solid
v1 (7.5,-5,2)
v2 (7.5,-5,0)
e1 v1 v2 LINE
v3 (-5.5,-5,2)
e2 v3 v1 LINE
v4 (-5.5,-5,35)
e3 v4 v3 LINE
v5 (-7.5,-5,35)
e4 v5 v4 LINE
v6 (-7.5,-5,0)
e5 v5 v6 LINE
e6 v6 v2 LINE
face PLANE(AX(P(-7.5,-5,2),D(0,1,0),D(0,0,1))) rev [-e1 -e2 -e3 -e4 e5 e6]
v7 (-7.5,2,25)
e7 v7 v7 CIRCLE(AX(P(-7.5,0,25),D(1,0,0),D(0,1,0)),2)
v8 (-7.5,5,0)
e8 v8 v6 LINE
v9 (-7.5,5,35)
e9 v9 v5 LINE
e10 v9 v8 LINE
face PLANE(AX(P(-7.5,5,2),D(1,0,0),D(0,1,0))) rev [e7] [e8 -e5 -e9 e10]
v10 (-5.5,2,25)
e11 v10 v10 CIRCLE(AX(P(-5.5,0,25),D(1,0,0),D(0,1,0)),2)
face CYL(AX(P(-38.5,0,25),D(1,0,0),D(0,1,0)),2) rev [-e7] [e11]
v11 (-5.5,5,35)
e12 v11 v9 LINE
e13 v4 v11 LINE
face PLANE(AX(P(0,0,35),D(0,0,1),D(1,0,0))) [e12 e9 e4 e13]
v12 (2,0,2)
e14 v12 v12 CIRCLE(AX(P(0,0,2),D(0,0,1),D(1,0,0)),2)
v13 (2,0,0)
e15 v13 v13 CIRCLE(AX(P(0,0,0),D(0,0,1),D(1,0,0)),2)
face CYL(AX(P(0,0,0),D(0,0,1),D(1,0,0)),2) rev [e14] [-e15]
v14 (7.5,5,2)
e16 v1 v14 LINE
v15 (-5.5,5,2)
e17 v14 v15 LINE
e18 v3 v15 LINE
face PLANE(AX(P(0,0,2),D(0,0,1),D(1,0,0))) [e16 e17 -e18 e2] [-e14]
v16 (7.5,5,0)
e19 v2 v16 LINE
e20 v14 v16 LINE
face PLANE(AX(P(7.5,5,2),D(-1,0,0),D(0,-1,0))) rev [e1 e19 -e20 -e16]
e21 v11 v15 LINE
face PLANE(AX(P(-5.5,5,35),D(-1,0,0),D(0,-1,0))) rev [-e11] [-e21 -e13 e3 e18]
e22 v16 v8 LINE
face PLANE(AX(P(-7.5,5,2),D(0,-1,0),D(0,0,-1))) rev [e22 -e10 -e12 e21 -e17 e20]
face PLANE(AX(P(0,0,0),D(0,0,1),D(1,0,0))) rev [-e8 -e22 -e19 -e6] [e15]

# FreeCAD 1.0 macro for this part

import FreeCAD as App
import Part
import Sketcher

V = App.Vector
Q = App.Units.Quantity


def add_polygon(sketch, points):
    """Adds a closed chain of lines whose ends are joined by coincident constraints."""
    first, n = sketch.GeometryCount, len(points)
    for a, b in zip(points, points[1:] + points[:1]):
        sketch.addGeometry(Part.LineSegment(App.Vector(*a, 0), App.Vector(*b, 0)), False)
    for i in range(n):
        sketch.addConstraint(Sketcher.Constraint("Coincident", first + i, 2, first + (i + 1) % n, 1))

doc = App.newDocument("Part")
params = doc.addObject("Spreadsheet::Sheet", "Params")
for row, (alias, value) in enumerate([
    ("sketch1_width", "15 mm"),
    ("sketch1_height", "10 mm"),
    ("pad1_length", "2 mm"),
    ("sketch2_diameter", "4 mm"),
    ("pocket1_length", "2 mm"),
    ("sketch3_width", "2 mm"),
    ("sketch3_height", "10 mm"),
    ("pad2_length", "33 mm"),
    ("sketch4_diameter", "4 mm"),
    ("pocket2_length", "33 mm"),
], start=1):
    params.set(f"A{row}", alias)
    params.set(f"B{row}", "=" + value)
    params.setAlias(f"B{row}", alias)

body = doc.addObject("PartDesign::Body", "Body")

sketch1 = doc.addObject("Sketcher::SketchObject", "Sketch")
body.addObject(sketch1)
sketch1.AttachmentSupport = (doc.XY_Plane, [""])
sketch1.MapMode = "FlatFace"
add_polygon(sketch1, [(-8, 5), (-8, -5), (8, -5), (8, 5)])
sketch1.addConstraint([
    Sketcher.Constraint("Vertical", 0),
    Sketcher.Constraint("Horizontal", 1),
    Sketcher.Constraint("Vertical", 2),
    Sketcher.Constraint("Horizontal", 3),
    Sketcher.Constraint("Symmetric", 0, 2, 2, 2, -1, 1),
    Sketcher.Constraint("DistanceX", 1, 1, 1, 2, Q("15 mm")),
    Sketcher.Constraint("DistanceY", 0, 2, 0, 1, Q("10 mm")),
])
sketch1.setExpression("Constraints[9]", "Params.sketch1_width")
sketch1.setExpression("Constraints[10]", "Params.sketch1_height")
pad1 = doc.addObject("PartDesign::Pad", "Pad")
body.addObject(pad1)
pad1.Profile = sketch1
pad1.setExpression("Length", "Params.pad1_length")

sketch2 = doc.addObject("Sketcher::SketchObject", "Sketch001")
body.addObject(sketch2)
sketch2.AttachmentSupport = (doc.XY_Plane, [""])
sketch2.MapMode = "FlatFace"
sketch2.AttachmentOffset = App.Placement(V(0, 0, 2), App.Rotation())
sketch2.addGeometry(Part.Circle(V(0, 0, 0), V(0, 0, 1), 2), False)
sketch2.addConstraint([
    Sketcher.Constraint("Coincident", 0, 3, -1, 1),
    Sketcher.Constraint("Diameter", 0, Q("4 mm")),
])
sketch2.setExpression("Constraints[1]", "Params.sketch2_diameter")
pocket1 = doc.addObject("PartDesign::Pocket", "Pocket")
body.addObject(pocket1)
pocket1.Profile = sketch2
pocket1.setExpression("Length", "Params.pocket1_length")

sketch3 = doc.addObject("Sketcher::SketchObject", "Sketch002")
body.addObject(sketch3)
sketch3.AttachmentSupport = (doc.XY_Plane, [""])
sketch3.MapMode = "FlatFace"
sketch3.AttachmentOffset = App.Placement(V(0, 0, 2), App.Rotation())
add_polygon(sketch3, [(-7.5, 5), (-7.5, -5), (-5.5, -5), (-5.5, 5)])
sketch3.addConstraint([
    Sketcher.Constraint("Vertical", 0),
    Sketcher.Constraint("Horizontal", 1),
    Sketcher.Constraint("Vertical", 2),
    Sketcher.Constraint("Horizontal", 3),
    Sketcher.Constraint("DistanceX", 1, 1, 1, 2, Q("2 mm")),
    Sketcher.Constraint("DistanceY", 0, 2, 0, 1, Q("10 mm")),
    Sketcher.Constraint("DistanceY", 0, 2, -1, 1, Q("5 mm")),
    Sketcher.Constraint("DistanceX", 0, 2, -1, 1, Q("7.5 mm")),
])
sketch3.setExpression("Constraints[8]", "Params.sketch3_width")
sketch3.setExpression("Constraints[9]", "Params.sketch3_height")
pad2 = doc.addObject("PartDesign::Pad", "Pad001")
body.addObject(pad2)
pad2.Profile = sketch3
pad2.setExpression("Length", "Params.pad2_length")

sketch4 = doc.addObject("Sketcher::SketchObject", "Sketch003")
body.addObject(sketch4)
sketch4.AttachmentSupport = (doc.YZ_Plane, [""])
sketch4.MapMode = "FlatFace"
sketch4.AttachmentOffset = App.Placement(V(0, 0, -5.5), App.Rotation())
sketch4.addGeometry(Part.Circle(V(0, 25, 0), V(0, 0, 1), 2), False)
sketch4.addConstraint([
    Sketcher.Constraint("PointOnObject", 0, 3, -2),
    Sketcher.Constraint("Diameter", 0, Q("4 mm")),
    Sketcher.Constraint("DistanceY", -1, 1, 0, 3, Q("25 mm")),
])
sketch4.setExpression("Constraints[1]", "Params.sketch4_diameter")
pocket2 = doc.addObject("PartDesign::Pocket", "Pocket001")
body.addObject(pocket2)
pocket2.Profile = sketch4
pocket2.setExpression("Length", "Params.pocket2_length")

doc.recompute()
